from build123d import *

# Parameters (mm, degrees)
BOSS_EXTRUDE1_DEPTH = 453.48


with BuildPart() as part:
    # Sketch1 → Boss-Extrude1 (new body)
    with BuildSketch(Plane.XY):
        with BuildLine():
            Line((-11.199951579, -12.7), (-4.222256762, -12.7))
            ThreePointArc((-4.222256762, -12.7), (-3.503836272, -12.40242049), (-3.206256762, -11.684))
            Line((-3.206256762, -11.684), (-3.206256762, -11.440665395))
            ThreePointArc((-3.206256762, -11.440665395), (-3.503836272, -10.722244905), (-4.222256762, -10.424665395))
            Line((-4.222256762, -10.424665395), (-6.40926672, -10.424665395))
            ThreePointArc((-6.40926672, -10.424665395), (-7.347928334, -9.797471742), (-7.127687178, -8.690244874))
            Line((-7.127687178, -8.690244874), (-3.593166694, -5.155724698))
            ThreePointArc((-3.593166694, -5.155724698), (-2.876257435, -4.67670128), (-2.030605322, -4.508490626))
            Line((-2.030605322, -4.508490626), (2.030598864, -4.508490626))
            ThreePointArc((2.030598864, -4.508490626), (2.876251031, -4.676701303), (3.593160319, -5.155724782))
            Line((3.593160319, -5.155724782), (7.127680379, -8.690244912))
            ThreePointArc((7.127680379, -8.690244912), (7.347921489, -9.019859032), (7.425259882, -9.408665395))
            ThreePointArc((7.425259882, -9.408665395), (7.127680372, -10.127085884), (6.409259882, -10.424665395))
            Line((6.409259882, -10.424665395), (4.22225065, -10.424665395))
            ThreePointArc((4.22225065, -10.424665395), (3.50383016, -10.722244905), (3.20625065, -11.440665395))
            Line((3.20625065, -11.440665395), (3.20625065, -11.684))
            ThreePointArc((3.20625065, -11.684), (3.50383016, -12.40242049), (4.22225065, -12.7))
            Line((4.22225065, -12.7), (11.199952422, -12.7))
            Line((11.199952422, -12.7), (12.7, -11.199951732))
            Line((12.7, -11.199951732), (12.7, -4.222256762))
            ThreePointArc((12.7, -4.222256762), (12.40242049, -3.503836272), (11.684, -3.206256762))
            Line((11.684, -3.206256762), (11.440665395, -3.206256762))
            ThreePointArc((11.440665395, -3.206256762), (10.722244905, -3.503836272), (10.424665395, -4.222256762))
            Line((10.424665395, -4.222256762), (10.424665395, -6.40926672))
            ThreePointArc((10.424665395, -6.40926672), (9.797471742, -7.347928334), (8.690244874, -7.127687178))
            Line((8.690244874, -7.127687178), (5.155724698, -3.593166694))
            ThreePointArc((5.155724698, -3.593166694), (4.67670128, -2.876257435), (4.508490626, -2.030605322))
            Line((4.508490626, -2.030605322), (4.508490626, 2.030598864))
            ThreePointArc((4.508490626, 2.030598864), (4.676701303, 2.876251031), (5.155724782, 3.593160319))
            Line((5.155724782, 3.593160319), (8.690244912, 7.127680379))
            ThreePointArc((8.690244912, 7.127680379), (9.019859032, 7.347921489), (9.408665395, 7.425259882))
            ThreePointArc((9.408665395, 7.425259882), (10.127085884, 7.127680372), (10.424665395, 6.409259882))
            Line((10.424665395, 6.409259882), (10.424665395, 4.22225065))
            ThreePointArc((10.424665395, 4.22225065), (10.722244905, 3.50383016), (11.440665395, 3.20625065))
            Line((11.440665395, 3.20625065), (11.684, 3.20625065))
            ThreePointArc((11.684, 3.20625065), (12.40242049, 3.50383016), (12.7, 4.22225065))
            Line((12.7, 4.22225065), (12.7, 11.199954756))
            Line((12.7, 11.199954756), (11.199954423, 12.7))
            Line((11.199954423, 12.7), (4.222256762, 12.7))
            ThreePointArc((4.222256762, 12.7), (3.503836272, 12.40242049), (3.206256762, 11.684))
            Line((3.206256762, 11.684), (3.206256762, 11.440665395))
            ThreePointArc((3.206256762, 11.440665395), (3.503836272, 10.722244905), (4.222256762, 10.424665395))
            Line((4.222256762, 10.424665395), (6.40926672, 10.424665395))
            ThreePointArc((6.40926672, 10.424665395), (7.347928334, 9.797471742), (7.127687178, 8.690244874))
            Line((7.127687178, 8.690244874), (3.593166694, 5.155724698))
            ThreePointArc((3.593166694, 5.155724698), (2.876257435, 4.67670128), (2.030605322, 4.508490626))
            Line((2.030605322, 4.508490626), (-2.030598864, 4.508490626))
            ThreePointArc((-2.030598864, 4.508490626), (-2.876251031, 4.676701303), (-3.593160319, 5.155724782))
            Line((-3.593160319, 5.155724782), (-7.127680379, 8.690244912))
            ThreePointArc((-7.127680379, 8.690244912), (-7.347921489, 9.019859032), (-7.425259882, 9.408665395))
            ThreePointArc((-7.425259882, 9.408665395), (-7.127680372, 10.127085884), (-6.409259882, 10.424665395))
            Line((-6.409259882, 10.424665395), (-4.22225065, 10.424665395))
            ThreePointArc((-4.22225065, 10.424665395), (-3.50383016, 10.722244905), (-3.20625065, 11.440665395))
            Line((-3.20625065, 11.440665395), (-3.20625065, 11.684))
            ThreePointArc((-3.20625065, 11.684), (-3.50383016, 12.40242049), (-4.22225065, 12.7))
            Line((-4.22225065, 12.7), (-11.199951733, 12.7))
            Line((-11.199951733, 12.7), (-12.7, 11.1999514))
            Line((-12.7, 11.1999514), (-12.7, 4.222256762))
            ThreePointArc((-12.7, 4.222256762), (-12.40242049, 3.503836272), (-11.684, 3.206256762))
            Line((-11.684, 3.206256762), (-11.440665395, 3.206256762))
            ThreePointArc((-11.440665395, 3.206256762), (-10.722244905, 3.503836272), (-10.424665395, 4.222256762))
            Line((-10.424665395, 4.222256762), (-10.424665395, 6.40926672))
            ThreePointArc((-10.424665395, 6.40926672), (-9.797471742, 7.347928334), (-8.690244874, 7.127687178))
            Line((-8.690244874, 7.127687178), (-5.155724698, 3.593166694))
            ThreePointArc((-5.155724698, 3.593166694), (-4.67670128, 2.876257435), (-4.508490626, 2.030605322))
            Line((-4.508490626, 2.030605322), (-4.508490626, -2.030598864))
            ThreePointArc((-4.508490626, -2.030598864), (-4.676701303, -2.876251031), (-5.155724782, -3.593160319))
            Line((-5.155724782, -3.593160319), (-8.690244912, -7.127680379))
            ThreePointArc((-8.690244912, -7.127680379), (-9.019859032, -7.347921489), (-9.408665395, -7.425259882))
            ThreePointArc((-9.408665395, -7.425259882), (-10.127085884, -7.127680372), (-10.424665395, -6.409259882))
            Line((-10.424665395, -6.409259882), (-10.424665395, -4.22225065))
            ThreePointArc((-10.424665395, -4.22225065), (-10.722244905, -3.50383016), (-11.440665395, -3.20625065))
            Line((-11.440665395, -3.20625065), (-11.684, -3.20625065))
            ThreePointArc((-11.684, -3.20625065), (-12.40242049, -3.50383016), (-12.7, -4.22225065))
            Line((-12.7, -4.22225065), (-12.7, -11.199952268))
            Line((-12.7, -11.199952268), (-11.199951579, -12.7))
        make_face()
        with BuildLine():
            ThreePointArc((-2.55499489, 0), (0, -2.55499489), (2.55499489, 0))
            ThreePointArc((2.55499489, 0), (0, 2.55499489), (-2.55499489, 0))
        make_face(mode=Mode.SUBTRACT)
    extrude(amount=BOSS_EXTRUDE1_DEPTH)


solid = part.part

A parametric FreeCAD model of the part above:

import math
import FreeCAD as App
import Part
import Sketcher
Q = App.Units.Quantity

doc = App.newDocument("Part")
body = doc.addObject("PartDesign::Body", "Body")

# Sketch on XY plane
sketch1 = doc.addObject("Sketcher::SketchObject", "Sketch")
body.addObject(sketch1)
sketch1.AttachmentSupport = (doc.XY_Plane, [""])
sketch1.MapMode = "FlatFace"
sketch1.addGeometry([
    Part.LineSegment(App.Vector(-11.2, -12.7, 0), App.Vector(-4.22, -12.7, 0)),  # 0
    Part.ArcOfCircle(Part.Circle(App.Vector(-4.22, -11.68, 0), App.Vector(0, 0, 1), 1.02), math.radians(-90), math.radians(0)),  # 1
    Part.LineSegment(App.Vector(-3.21, -11.68, 0), App.Vector(-3.21, -11.44, 0)),  # 2
    Part.ArcOfCircle(Part.Circle(App.Vector(-4.22, -11.44, 0), App.Vector(0, 0, 1), 1.02), math.radians(0), math.radians(90)),  # 3
    Part.LineSegment(App.Vector(-4.22, -10.42, 0), App.Vector(-6.41, -10.42, 0)),  # 4
    Part.ArcOfCircle(Part.Circle(App.Vector(-6.41, -9.41, 0), App.Vector(0, 0, 1), 1.02), math.radians(135), math.radians(270)),  # 5
    Part.LineSegment(App.Vector(-7.13, -8.69, 0), App.Vector(-3.59, -5.16, 0)),  # 6
    Part.ArcOfCircle(Part.Circle(App.Vector(-2.03, -6.72, 0), App.Vector(0, 0, 1), 2.21), math.radians(90), math.radians(135)),  # 7
    Part.LineSegment(App.Vector(-2.03, -4.51, 0), App.Vector(2.03, -4.51, 0)),  # 8
    Part.ArcOfCircle(Part.Circle(App.Vector(2.03, -6.72, 0), App.Vector(0, 0, 1), 2.21), math.radians(45), math.radians(90)),  # 9
    Part.LineSegment(App.Vector(3.59, -5.16, 0), App.Vector(7.13, -8.69, 0)),  # 10
    Part.ArcOfCircle(Part.Circle(App.Vector(6.41, -9.41, 0), App.Vector(0, 0, 1), 1.02), math.radians(0), math.radians(45)),  # 11
    Part.ArcOfCircle(Part.Circle(App.Vector(6.41, -9.41, 0), App.Vector(0, 0, 1), 1.02), math.radians(-90), math.radians(0)),  # 12
    Part.LineSegment(App.Vector(6.41, -10.42, 0), App.Vector(4.22, -10.42, 0)),  # 13
    Part.ArcOfCircle(Part.Circle(App.Vector(4.22, -11.44, 0), App.Vector(0, 0, 1), 1.02), math.radians(90), math.radians(180)),  # 14
    Part.LineSegment(App.Vector(3.21, -11.44, 0), App.Vector(3.21, -11.68, 0)),  # 15
    Part.ArcOfCircle(Part.Circle(App.Vector(4.22, -11.68, 0), App.Vector(0, 0, 1), 1.02), math.radians(180), math.radians(270)),  # 16
    Part.LineSegment(App.Vector(4.22, -12.7, 0), App.Vector(11.2, -12.7, 0)),  # 17
    Part.LineSegment(App.Vector(11.2, -12.7, 0), App.Vector(12.7, -11.2, 0)),  # 18
    Part.LineSegment(App.Vector(12.7, -11.2, 0), App.Vector(12.7, -4.22, 0)),  # 19
    Part.ArcOfCircle(Part.Circle(App.Vector(11.68, -4.22, 0), App.Vector(0, 0, 1), 1.02), math.radians(0), math.radians(90)),  # 20
    Part.LineSegment(App.Vector(11.68, -3.21, 0), App.Vector(11.44, -3.21, 0)),  # 21
    Part.ArcOfCircle(Part.Circle(App.Vector(11.44, -4.22, 0), App.Vector(0, 0, 1), 1.02), math.radians(90), math.radians(180)),  # 22
    Part.LineSegment(App.Vector(10.42, -4.22, 0), App.Vector(10.42, -6.41, 0)),  # 23
    Part.ArcOfCircle(Part.Circle(App.Vector(9.41, -6.41, 0), App.Vector(0, 0, 1), 1.02), math.radians(-135), math.radians(0)),  # 24
    Part.LineSegment(App.Vector(8.69, -7.13, 0), App.Vector(5.16, -3.59, 0)),  # 25
    Part.ArcOfCircle(Part.Circle(App.Vector(6.72, -2.03, 0), App.Vector(0, 0, 1), 2.21), math.radians(180), math.radians(225)),  # 26
    Part.LineSegment(App.Vector(4.51, -2.03, 0), App.Vector(4.51, 2.03, 0)),  # 27
    Part.ArcOfCircle(Part.Circle(App.Vector(6.72, 2.03, 0), App.Vector(0, 0, 1), 2.21), math.radians(135), math.radians(180)),  # 28
    Part.LineSegment(App.Vector(5.16, 3.59, 0), App.Vector(8.69, 7.13, 0)),  # 29
    Part.ArcOfCircle(Part.Circle(App.Vector(9.41, 6.41, 0), App.Vector(0, 0, 1), 1.02), math.radians(90), math.radians(135)),  # 30
    Part.ArcOfCircle(Part.Circle(App.Vector(9.41, 6.41, 0), App.Vector(0, 0, 1), 1.02), math.radians(0), math.radians(90)),  # 31
    Part.LineSegment(App.Vector(10.42, 6.41, 0), App.Vector(10.42, 4.22, 0)),  # 32
    Part.ArcOfCircle(Part.Circle(App.Vector(11.44, 4.22, 0), App.Vector(0, 0, 1), 1.02), math.radians(180), math.radians(270)),  # 33
    Part.LineSegment(App.Vector(11.44, 3.21, 0), App.Vector(11.68, 3.21, 0)),  # 34
    Part.ArcOfCircle(Part.Circle(App.Vector(11.68, 4.22, 0), App.Vector(0, 0, 1), 1.02), math.radians(-90), math.radians(0)),  # 35
    Part.LineSegment(App.Vector(12.7, 4.22, 0), App.Vector(12.7, 11.2, 0)),  # 36
    Part.LineSegment(App.Vector(12.7, 11.2, 0), App.Vector(11.2, 12.7, 0)),  # 37
    Part.LineSegment(App.Vector(11.2, 12.7, 0), App.Vector(4.22, 12.7, 0)),  # 38
    Part.ArcOfCircle(Part.Circle(App.Vector(4.22, 11.68, 0), App.Vector(0, 0, 1), 1.02), math.radians(90), math.radians(180)),  # 39
    Part.LineSegment(App.Vector(3.21, 11.68, 0), App.Vector(3.21, 11.44, 0)),  # 40
    Part.ArcOfCircle(Part.Circle(App.Vector(4.22, 11.44, 0), App.Vector(0, 0, 1), 1.02), math.radians(180), math.radians(270)),  # 41
    Part.LineSegment(App.Vector(4.22, 10.42, 0), App.Vector(6.41, 10.42, 0)),  # 42
    Part.ArcOfCircle(Part.Circle(App.Vector(6.41, 9.41, 0), App.Vector(0, 0, 1), 1.02), math.radians(-45), math.radians(90)),  # 43
    Part.LineSegment(App.Vector(7.13, 8.69, 0), App.Vector(3.59, 5.16, 0)),  # 44
    Part.ArcOfCircle(Part.Circle(App.Vector(2.03, 6.72, 0), App.Vector(0, 0, 1), 2.21), math.radians(-90), math.radians(-45)),  # 45
    Part.LineSegment(App.Vector(2.03, 4.51, 0), App.Vector(-2.03, 4.51, 0)),  # 46
    Part.ArcOfCircle(Part.Circle(App.Vector(-2.03, 6.72, 0), App.Vector(0, 0, 1), 2.21), math.radians(-135), math.radians(-90)),  # 47
    Part.LineSegment(App.Vector(-3.59, 5.16, 0), App.Vector(-7.13, 8.69, 0)),  # 48
    Part.ArcOfCircle(Part.Circle(App.Vector(-6.41, 9.41, 0), App.Vector(0, 0, 1), 1.02), math.radians(180), math.radians(225)),  # 49
    Part.ArcOfCircle(Part.Circle(App.Vector(-6.41, 9.41, 0), App.Vector(0, 0, 1), 1.02), math.radians(90), math.radians(180)),  # 50
    Part.LineSegment(App.Vector(-6.41, 10.42, 0), App.Vector(-4.22, 10.42, 0)),  # 51
    Part.ArcOfCircle(Part.Circle(App.Vector(-4.22, 11.44, 0), App.Vector(0, 0, 1), 1.02), math.radians(-90), math.radians(0)),  # 52
    Part.LineSegment(App.Vector(-3.21, 11.44, 0), App.Vector(-3.21, 11.68, 0)),  # 53
    Part.ArcOfCircle(Part.Circle(App.Vector(-4.22, 11.68, 0), App.Vector(0, 0, 1), 1.02), math.radians(0), math.radians(90)),  # 54
    Part.LineSegment(App.Vector(-4.22, 12.7, 0), App.Vector(-11.2, 12.7, 0)),  # 55
    Part.LineSegment(App.Vector(-11.2, 12.7, 0), App.Vector(-12.7, 11.2, 0)),  # 56
    Part.LineSegment(App.Vector(-12.7, 11.2, 0), App.Vector(-12.7, 4.22, 0)),  # 57
    Part.ArcOfCircle(Part.Circle(App.Vector(-11.68, 4.22, 0), App.Vector(0, 0, 1), 1.02), math.radians(180), math.radians(270)),  # 58
    Part.LineSegment(App.Vector(-11.68, 3.21, 0), App.Vector(-11.44, 3.21, 0)),  # 59
    Part.ArcOfCircle(Part.Circle(App.Vector(-11.44, 4.22, 0), App.Vector(0, 0, 1), 1.02), math.radians(-90), math.radians(0)),  # 60
    Part.LineSegment(App.Vector(-10.42, 4.22, 0), App.Vector(-10.42, 6.41, 0)),  # 61
    Part.ArcOfCircle(Part.Circle(App.Vector(-9.41, 6.41, 0), App.Vector(0, 0, 1), 1.02), math.radians(45), math.radians(180)),  # 62
    Part.LineSegment(App.Vector(-8.69, 7.13, 0), App.Vector(-5.16, 3.59, 0)),  # 63
    Part.ArcOfCircle(Part.Circle(App.Vector(-6.72, 2.03, 0), App.Vector(0, 0, 1), 2.21), math.radians(0), math.radians(45)),  # 64
    Part.LineSegment(App.Vector(-4.51, 2.03, 0), App.Vector(-4.51, -2.03, 0)),  # 65
    Part.ArcOfCircle(Part.Circle(App.Vector(-6.72, -2.03, 0), App.Vector(0, 0, 1), 2.21), math.radians(-45), math.radians(0)),  # 66
    Part.LineSegment(App.Vector(-5.16, -3.59, 0), App.Vector(-8.69, -7.13, 0)),  # 67
    Part.ArcOfCircle(Part.Circle(App.Vector(-9.41, -6.41, 0), App.Vector(0, 0, 1), 1.02), math.radians(-90), math.radians(-45)),  # 68
    Part.ArcOfCircle(Part.Circle(App.Vector(-9.41, -6.41, 0), App.Vector(0, 0, 1), 1.02), math.radians(-180), math.radians(-90)),  # 69
    Part.LineSegment(App.Vector(-10.42, -6.41, 0), App.Vector(-10.42, -4.22, 0)),  # 70
    Part.ArcOfCircle(Part.Circle(App.Vector(-11.44, -4.22, 0), App.Vector(0, 0, 1), 1.02), math.radians(0), math.radians(90)),  # 71
    Part.LineSegment(App.Vector(-11.44, -3.21, 0), App.Vector(-11.68, -3.21, 0)),  # 72
    Part.ArcOfCircle(Part.Circle(App.Vector(-11.68, -4.22, 0), App.Vector(0, 0, 1), 1.02), math.radians(90), math.radians(180)),  # 73
    Part.LineSegment(App.Vector(-12.7, -4.22, 0), App.Vector(-12.7, -11.2, 0)),  # 74
    Part.LineSegment(App.Vector(-12.7, -11.2, 0), App.Vector(-11.2, -12.7, 0)),  # 75
    Part.Circle(App.Vector(0, 0, 0), App.Vector(0, 0, 1), 2.55),  # 76
], False)
sketch1.addConstraint([
    Sketcher.Constraint("Tangent", 0, 2, 1, 1),
    Sketcher.Constraint("Tangent", 1, 2, 2, 1),
    Sketcher.Constraint("Tangent", 2, 2, 3, 1),
    Sketcher.Constraint("Tangent", 3, 2, 4, 1),
    Sketcher.Constraint("Tangent", 4, 2, 5, 2),
    Sketcher.Constraint("Tangent", 5, 1, 6, 1),
    Sketcher.Constraint("Tangent", 6, 2, 7, 2),
    Sketcher.Constraint("Tangent", 7, 1, 8, 1),
    Sketcher.Constraint("Tangent", 8, 2, 9, 2),
    Sketcher.Constraint("Tangent", 9, 1, 10, 1),
    Sketcher.Constraint("Tangent", 10, 2, 11, 2),
    Sketcher.Constraint("Tangent", 11, 1, 12, 2),
    Sketcher.Constraint("Tangent", 12, 1, 13, 1),
    Sketcher.Constraint("Tangent", 13, 2, 14, 1),
    Sketcher.Constraint("Tangent", 14, 2, 15, 1),
    Sketcher.Constraint("Tangent", 15, 2, 16, 1),
    Sketcher.Constraint("Tangent", 16, 2, 17, 1),
    Sketcher.Constraint("Coincident", 17, 2, 18, 1),
    Sketcher.Constraint("Coincident", 18, 2, 19, 1),
    Sketcher.Constraint("Tangent", 19, 2, 20, 1),
    Sketcher.Constraint("Tangent", 20, 2, 21, 1),
    Sketcher.Constraint("Tangent", 21, 2, 22, 1),
    Sketcher.Constraint("Tangent", 22, 2, 23, 1),
    Sketcher.Constraint("Tangent", 23, 2, 24, 2),
    Sketcher.Constraint("Tangent", 24, 1, 25, 1),
    Sketcher.Constraint("Tangent", 25, 2, 26, 2),
    Sketcher.Constraint("Tangent", 26, 1, 27, 1),
    Sketcher.Constraint("Tangent", 27, 2, 28, 2),
    Sketcher.Constraint("Tangent", 28, 1, 29, 1),
    Sketcher.Constraint("Tangent", 29, 2, 30, 2),
    Sketcher.Constraint("Tangent", 30, 1, 31, 2),
    Sketcher.Constraint("Tangent", 31, 1, 32, 1),
    Sketcher.Constraint("Tangent", 32, 2, 33, 1),
    Sketcher.Constraint("Tangent", 33, 2, 34, 1),
    Sketcher.Constraint("Tangent", 34, 2, 35, 1),
    Sketcher.Constraint("Tangent", 35, 2, 36, 1),
    Sketcher.Constraint("Coincident", 36, 2, 37, 1),
    Sketcher.Constraint("Coincident", 37, 2, 38, 1),
    Sketcher.Constraint("Tangent", 38, 2, 39, 1),
    Sketcher.Constraint("Tangent", 39, 2, 40, 1),
    Sketcher.Constraint("Tangent", 40, 2, 41, 1),
    Sketcher.Constraint("Tangent", 41, 2, 42, 1),
    Sketcher.Constraint("Tangent", 42, 2, 43, 2),
    Sketcher.Constraint("Tangent", 43, 1, 44, 1),
    Sketcher.Constraint("Tangent", 44, 2, 45, 2),
    Sketcher.Constraint("Tangent", 45, 1, 46, 1),
    Sketcher.Constraint("Tangent", 46, 2, 47, 2),
    Sketcher.Constraint("Tangent", 47, 1, 48, 1),
    Sketcher.Constraint("Tangent", 48, 2, 49, 2),
    Sketcher.Constraint("Tangent", 49, 1, 50, 2),
    Sketcher.Constraint("Tangent", 50, 1, 51, 1),
    Sketcher.Constraint("Tangent", 51, 2, 52, 1),
    Sketcher.Constraint("Tangent", 52, 2, 53, 1),
    Sketcher.Constraint("Tangent", 53, 2, 54, 1),
    Sketcher.Constraint("Tangent", 54, 2, 55, 1),
    Sketcher.Constraint("Coincident", 55, 2, 56, 1),
    Sketcher.Constraint("Coincident", 56, 2, 57, 1),
    Sketcher.Constraint("Tangent", 57, 2, 58, 1),
    Sketcher.Constraint("Tangent", 58, 2, 59, 1),
    Sketcher.Constraint("Tangent", 59, 2, 60, 1),
    Sketcher.Constraint("Tangent", 60, 2, 61, 1),
    Sketcher.Constraint("Tangent", 61, 2, 62, 2),
    Sketcher.Constraint("Tangent", 62, 1, 63, 1),
    Sketcher.Constraint("Tangent", 63, 2, 64, 2),
    Sketcher.Constraint("Tangent", 64, 1, 65, 1),
    Sketcher.Constraint("Tangent", 65, 2, 66, 2),
    Sketcher.Constraint("Tangent", 66, 1, 67, 1),
    Sketcher.Constraint("Tangent", 67, 2, 68, 2),
    Sketcher.Constraint("Tangent", 68, 1, 69, 2),
    Sketcher.Constraint("Tangent", 69, 1, 70, 1),
    Sketcher.Constraint("Tangent", 70, 2, 71, 1),
    Sketcher.Constraint("Tangent", 71, 2, 72, 1),
    Sketcher.Constraint("Tangent", 72, 2, 73, 1),
    Sketcher.Constraint("Tangent", 73, 2, 74, 1),
    Sketcher.Constraint("Coincident", 74, 2, 75, 1),
    Sketcher.Constraint("Coincident", 75, 2, 0, 1),
    Sketcher.Constraint("Horizontal", 0),
    Sketcher.Constraint("Vertical", 2),
    Sketcher.Constraint("Horizontal", 4),
    Sketcher.Constraint("Horizontal", 8),
    Sketcher.Constraint("Horizontal", 13),
    Sketcher.Constraint("Vertical", 15),
    Sketcher.Constraint("Horizontal", 17),
    Sketcher.Constraint("Vertical", 19),
    Sketcher.Constraint("Horizontal", 21),
    Sketcher.Constraint("Vertical", 23),
    Sketcher.Constraint("Vertical", 27),
    Sketcher.Constraint("Vertical", 32),
    Sketcher.Constraint("Horizontal", 34),
    Sketcher.Constraint("Vertical", 36),
    Sketcher.Constraint("Horizontal", 38),
    Sketcher.Constraint("Vertical", 40),
    Sketcher.Constraint("Horizontal", 42),
    Sketcher.Constraint("Horizontal", 46),
    Sketcher.Constraint("Horizontal", 51),
    Sketcher.Constraint("Vertical", 53),
    Sketcher.Constraint("Horizontal", 55),
    Sketcher.Constraint("Vertical", 57),
    Sketcher.Constraint("Horizontal", 59),
    Sketcher.Constraint("Vertical", 61),
    Sketcher.Constraint("Vertical", 65),
    Sketcher.Constraint("Vertical", 70),
    Sketcher.Constraint("Horizontal", 72),
    Sketcher.Constraint("Vertical", 74),
    Sketcher.Constraint("Coincident", 76, 3, -1, 1),
    Sketcher.Constraint("Equal", 1, 3),
    Sketcher.Constraint("Equal", 3, 5),
    Sketcher.Constraint("Equal", 7, 9),
    Sketcher.Constraint("Equal", 5, 11),
    Sketcher.Constraint("Equal", 11, 12),
    Sketcher.Constraint("Equal", 12, 14),
    Sketcher.Constraint("Equal", 14, 16),
    Sketcher.Constraint("Equal", 16, 20),
    Sketcher.Constraint("Equal", 20, 22),
    Sketcher.Constraint("Equal", 22, 24),
    Sketcher.Constraint("Equal", 9, 26),
    Sketcher.Constraint("Equal", 26, 28),
    Sketcher.Constraint("Equal", 24, 30),
    Sketcher.Constraint("Equal", 30, 31),
    Sketcher.Constraint("Equal", 31, 33),
    Sketcher.Constraint("Equal", 33, 35),
    Sketcher.Constraint("Equal", 35, 39),
    Sketcher.Constraint("Equal", 39, 41),
    Sketcher.Constraint("Equal", 41, 43),
    Sketcher.Constraint("Equal", 28, 45),
    Sketcher.Constraint("Equal", 45, 47),
    Sketcher.Constraint("Equal", 43, 49),
    Sketcher.Constraint("Equal", 49, 50),
    Sketcher.Constraint("Equal", 50, 52),
    Sketcher.Constraint("Equal", 52, 54),
    Sketcher.Constraint("Equal", 54, 58),
    Sketcher.Constraint("Equal", 58, 60),
    Sketcher.Constraint("Equal", 60, 62),
    Sketcher.Constraint("Equal", 47, 64),
    Sketcher.Constraint("Equal", 64, 66),
    Sketcher.Constraint("Equal", 62, 68),
    Sketcher.Constraint("Equal", 68, 69),
    Sketcher.Constraint("Equal", 69, 71),
    Sketcher.Constraint("Equal", 71, 73),
    Sketcher.Constraint("Symmetric", 1, 3, 39, 3, -1, 1),
    Sketcher.Constraint("Symmetric", 5, 3, 43, 3, -1, 1),
    Sketcher.Constraint("Symmetric", 7, 3, 45, 3, -1, 1),
    Sketcher.Constraint("Symmetric", 11, 3, 49, 3, -1, 1),
    Sketcher.Constraint("Symmetric", 16, 3, 54, 3, -1, 1),
    Sketcher.Constraint("Symmetric", 20, 3, 58, 3, -1, 1),
    Sketcher.Constraint("Symmetric", 24, 3, 62, 3, -1, 1),
    Sketcher.Constraint("Symmetric", 26, 3, 64, 3, -1, 1),
    Sketcher.Constraint("Symmetric", 30, 3, 68, 3, -1, 1),
    Sketcher.Constraint("Symmetric", 35, 3, 73, 3, -1, 1),
    Sketcher.Constraint("Symmetric", 5, 3, 11, 3, -2),
    Sketcher.Constraint("Symmetric", 1, 3, 16, 3, -2),
    Sketcher.Constraint("Symmetric", 35, 3, 58, 3, -2),
    Sketcher.Constraint("Symmetric", 30, 3, 62, 3, -2),
    Sketcher.Constraint("Perpendicular", 6, 10),
    Sketcher.Constraint("Perpendicular", 10, 18),
    Sketcher.Constraint("Perpendicular", 18, 25),
    Sketcher.Constraint("Perpendicular", 25, 29),
    Sketcher.Constraint("Perpendicular", 29, 37),
    Sketcher.Constraint("Perpendicular", 44, 48),
    Sketcher.Constraint("Perpendicular", 48, 56),
    Sketcher.Constraint("Perpendicular", 63, 67),
    Sketcher.Constraint("Perpendicular", 67, 75),
    Sketcher.Constraint("Horizontal", 6, 2, 9, 1),
    Sketcher.Constraint("Horizontal", 12, 3, 11, 1),
    Sketcher.Constraint("Horizontal", 50, 3, 49, 1),
    Sketcher.Constraint("Horizontal", 18, 2, 74, 2),
    Sketcher.Constraint("Vertical", 31, 3, 30, 1),
    Sketcher.Constraint("Vertical", 69, 3, 68, 1),
    Sketcher.Constraint("Vertical", 55, 2, 75, 2),
    Sketcher.Constraint("Equal", 72, 2),
    Sketcher.Constraint("Equal", 0, 19),
    Sketcher.Constraint("Equal", 51, 23),
    Sketcher.Constraint("Equal", 46, 27),
    Sketcher.Constraint("Equal", 10, 25),
    Sketcher.Constraint("Radius", 1, Q("0.04 in")),
    Sketcher.Constraint("Radius", 7, Q("0.0869998 in")),
    Sketcher.Constraint("DistanceY", 0, 2, -1, 1, Q("0.5 in")),
    Sketcher.Constraint("Diameter", 76, 5.10999),
    Sketcher.Constraint("DistanceX", 17, 1, 17, 2, 6.977702),
    Sketcher.Constraint("DistanceX", 4, 2, 4, 1, 2.18701),
    Sketcher.Constraint("DistanceX", -1, 1, 9, 3, 2.030599),
    Sketcher.Constraint("Distance", 18, 2.121388),
    Sketcher.Constraint("DistanceX", 21, 2, 21, 1, 0.243335),
    Sketcher.Constraint("DistanceX", 38, 2, 38, 1, 6.977698),
])
pad1 = doc.addObject("PartDesign::Pad", "Pad")
body.addObject(pad1)
pad1.Profile = sketch1
pad1.Length = 453.48

doc.recompute()
